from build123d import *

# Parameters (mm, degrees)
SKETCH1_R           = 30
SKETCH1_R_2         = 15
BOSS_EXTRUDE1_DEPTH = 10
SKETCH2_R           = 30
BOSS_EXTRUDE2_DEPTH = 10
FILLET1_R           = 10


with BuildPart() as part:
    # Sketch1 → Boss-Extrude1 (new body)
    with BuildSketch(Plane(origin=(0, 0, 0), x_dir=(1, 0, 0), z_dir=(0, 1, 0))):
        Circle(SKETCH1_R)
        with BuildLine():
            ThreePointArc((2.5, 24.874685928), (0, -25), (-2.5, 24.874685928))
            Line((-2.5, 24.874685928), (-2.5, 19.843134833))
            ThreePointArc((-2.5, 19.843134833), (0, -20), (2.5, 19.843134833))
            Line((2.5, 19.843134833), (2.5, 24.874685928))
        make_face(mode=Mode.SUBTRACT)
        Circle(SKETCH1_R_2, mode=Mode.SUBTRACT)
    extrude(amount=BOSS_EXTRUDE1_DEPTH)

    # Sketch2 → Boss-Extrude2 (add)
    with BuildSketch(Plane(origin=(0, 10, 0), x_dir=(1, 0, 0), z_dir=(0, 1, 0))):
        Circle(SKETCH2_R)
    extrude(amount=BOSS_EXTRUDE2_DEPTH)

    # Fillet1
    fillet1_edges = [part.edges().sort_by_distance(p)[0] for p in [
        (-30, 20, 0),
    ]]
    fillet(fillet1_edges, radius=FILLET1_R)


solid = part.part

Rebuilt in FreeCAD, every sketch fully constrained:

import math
import FreeCAD as App
import Part
import Sketcher
from FreeCAD import Vector


def edges_at(feature, points):
    """Names of the edges that pass closest to the given points."""
    edges = feature.Shape.Edges
    near = lambda p: min(range(len(edges)), key=lambda i: edges[i].distToShape(Part.Vertex(*p))[0])
    return sorted({f"Edge{near(p) + 1}" for p in points})

doc = App.newDocument("Part")
body = doc.addObject("PartDesign::Body", "Body")

# Sketch on XZ plane
sketch1 = doc.addObject("Sketcher::SketchObject", "Sketch")
body.addObject(sketch1)
sketch1.AttachmentSupport = (doc.XZ_Plane, [""])
sketch1.MapMode = "FlatFace"
sketch1.addGeometry([
    Part.Circle(Vector(0, 0, 0), Vector(0, 0, 1), 30),  # 0
    Part.LineSegment(Vector(2, -20, 0), Vector(2, -25, 0)),  # 1
    Part.ArcOfCircle(Part.Circle(Vector(0, 0, 0), Vector(0, 0, 1), 25), math.radians(-84), math.radians(264)),  # 2
    Part.LineSegment(Vector(-2, -25, 0), Vector(-2, -20, 0)),  # 3
    Part.ArcOfCircle(Part.Circle(Vector(0, 0, 0), Vector(0, 0, 1), 20), math.radians(-83), math.radians(263)),  # 4
    Part.Circle(Vector(0, 0, 0), Vector(0, 0, 1), 15),  # 5
], False)
sketch1.addConstraint([
    Sketcher.Constraint("Coincident", 1, 2, 2, 1),
    Sketcher.Constraint("Coincident", 2, 2, 3, 1),
    Sketcher.Constraint("Coincident", 3, 2, 4, 2),
    Sketcher.Constraint("Coincident", 4, 1, 1, 1),
    Sketcher.Constraint("Vertical", 1),
    Sketcher.Constraint("Vertical", 3),
    Sketcher.Constraint("Coincident", 0, 3, -1, 1),
    Sketcher.Constraint("Coincident", 2, 3, -1, 1),
    Sketcher.Constraint("Coincident", 4, 3, -1, 1),
    Sketcher.Constraint("Coincident", 5, 3, -1, 1),
    Sketcher.Constraint("Horizontal", 1, 2, 2, 2),
    Sketcher.Constraint("Diameter", 0, 60.0),
    Sketcher.Constraint("Diameter", 5, 30.0),
    Sketcher.Constraint("Radius", 2, 25.0),
    Sketcher.Constraint("Radius", 4, 20.0),
    Sketcher.Constraint("DistanceX", 2, 2, 1, 2, 5.0),
])
pad1 = doc.addObject("PartDesign::Pad", "Pad")
body.addObject(pad1)
pad1.Profile = sketch1
pad1.Length = 10
pad1.Reversed = True

# Sketch on XZ plane
sketch2 = doc.addObject("Sketcher::SketchObject", "Sketch001")
body.addObject(sketch2)
sketch2.AttachmentSupport = (doc.XZ_Plane, [""])
sketch2.MapMode = "FlatFace"
sketch2.AttachmentOffset = App.Placement(Vector(0, 0, -10), App.Rotation())
sketch2.addGeometry(Part.Circle(Vector(0, 0, 0), Vector(0, 0, 1), 30), False)
sketch2.addConstraint([
    Sketcher.Constraint("Coincident", 0, 3, -1, 1),
    Sketcher.Constraint("Diameter", 0, 60.0),
])
pad2 = doc.addObject("PartDesign::Pad", "Pad001")
body.addObject(pad2)
pad2.Profile = sketch2
pad2.Length = 10
pad2.Reversed = True
doc.recompute()

fillet = doc.addObject("PartDesign::Fillet", "Fillet")
body.addObject(fillet)
fillet.Base = (pad2, edges_at(pad2, [(-30, 20, 0)]))
fillet.Radius = 10

doc.recompute()
